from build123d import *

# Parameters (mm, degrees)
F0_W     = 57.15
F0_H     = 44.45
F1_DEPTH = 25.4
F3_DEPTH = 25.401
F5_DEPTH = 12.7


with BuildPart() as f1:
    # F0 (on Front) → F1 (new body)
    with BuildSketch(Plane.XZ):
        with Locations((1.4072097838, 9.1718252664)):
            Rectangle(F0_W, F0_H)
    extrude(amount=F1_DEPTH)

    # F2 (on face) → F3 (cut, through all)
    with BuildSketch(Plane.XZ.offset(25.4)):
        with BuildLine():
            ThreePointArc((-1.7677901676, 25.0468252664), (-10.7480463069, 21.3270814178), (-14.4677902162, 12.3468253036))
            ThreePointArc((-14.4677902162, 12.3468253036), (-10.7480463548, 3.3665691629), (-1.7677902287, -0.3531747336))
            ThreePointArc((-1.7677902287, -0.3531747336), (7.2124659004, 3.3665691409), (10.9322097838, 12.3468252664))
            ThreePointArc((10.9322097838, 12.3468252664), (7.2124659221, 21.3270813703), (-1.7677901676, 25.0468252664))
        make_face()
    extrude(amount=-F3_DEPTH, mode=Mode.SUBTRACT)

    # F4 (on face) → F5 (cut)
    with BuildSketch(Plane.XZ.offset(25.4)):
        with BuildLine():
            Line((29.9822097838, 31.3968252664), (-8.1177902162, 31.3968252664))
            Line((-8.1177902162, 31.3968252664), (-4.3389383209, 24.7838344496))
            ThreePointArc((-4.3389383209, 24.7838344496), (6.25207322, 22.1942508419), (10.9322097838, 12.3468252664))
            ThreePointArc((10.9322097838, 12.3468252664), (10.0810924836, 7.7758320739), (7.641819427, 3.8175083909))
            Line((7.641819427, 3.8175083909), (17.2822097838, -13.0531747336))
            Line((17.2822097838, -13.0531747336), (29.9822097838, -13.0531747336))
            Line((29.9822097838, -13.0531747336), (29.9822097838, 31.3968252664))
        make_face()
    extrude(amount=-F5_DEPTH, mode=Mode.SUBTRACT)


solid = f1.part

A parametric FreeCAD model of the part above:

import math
import FreeCAD as App
import Part
import Sketcher

V = App.Vector
Q = App.Units.Quantity


def add_polygon(sketch, points):
    """Adds a closed chain of lines whose ends are joined by coincident constraints."""
    first, n = sketch.GeometryCount, len(points)
    for a, b in zip(points, points[1:] + points[:1]):
        sketch.addGeometry(Part.LineSegment(App.Vector(*a, 0), App.Vector(*b, 0)), False)
    for i in range(n):
        sketch.addConstraint(Sketcher.Constraint("Coincident", first + i, 2, first + (i + 1) % n, 1))

doc = App.newDocument("Part")
body = doc.addObject("PartDesign::Body", "Body")

# Sketch on XZ plane
sketch1 = body.newObject("Sketcher::SketchObject", "Sketch")
sketch1.AttachmentSupport = (doc.getObject("XZ_Plane"), [""])
sketch1.MapMode = "FlatFace"
add_polygon(sketch1, [(-27.16779, 31.396825), (-27.16779, -13.053175), (29.98221, -13.053175), (29.98221, 31.396825)])  # lines 0-3
sketch1.addConstraint([
    Sketcher.Constraint("Vertical", 0),
    Sketcher.Constraint("Horizontal", 1),
    Sketcher.Constraint("Vertical", 2),
    Sketcher.Constraint("Horizontal", 3),
    Sketcher.Constraint("DistanceX", 1, 1, 1, 2, Q("2.25 in")),
    Sketcher.Constraint("DistanceY", 0, 2, 0, 1, Q("1.75 in")),
    Sketcher.Constraint("DistanceX", 0, 2, -1, 1, Q("27.16779 mm")),
    Sketcher.Constraint("DistanceY", 0, 2, -1, 1, Q("13.053175 mm")),
])
pad1 = body.newObject("PartDesign::Pad", "Pad")
pad1.Profile = sketch1
pad1.Length = Q("1 in")

# Sketch on XZ plane
sketch2 = body.newObject("Sketcher::SketchObject", "Sketch001")
sketch2.AttachmentSupport = (doc.getObject("XZ_Plane"), [""])
sketch2.MapMode = "FlatFace"
sketch2.AttachmentOffset = App.Placement(V(0, 0, 1 * 25.4), App.Rotation())
sketch2.addGeometry([
    Part.ArcOfCircle(Part.Circle(V(-1.76779, 12.346825, 0), V(0, 0, 1), 12.7), math.radians(90), math.radians(180)),
    Part.ArcOfCircle(Part.Circle(V(-1.76779, 12.346825, 0), V(0, 0, 1), 12.7), math.radians(180), math.radians(270)),
    Part.ArcOfCircle(Part.Circle(V(-1.76779, 12.346825, 0), V(0, 0, 1), 12.7), math.radians(-90), math.radians(0)),
    Part.ArcOfCircle(Part.Circle(V(-1.76779, 12.346825, 0), V(0, 0, 1), 12.7), math.radians(0), math.radians(90)),
], False)
sketch2.addConstraint([
    Sketcher.Constraint("Tangent", 0, 2, 1, 1),
    Sketcher.Constraint("Tangent", 1, 2, 2, 1),
    Sketcher.Constraint("Tangent", 2, 2, 3, 1),
    Sketcher.Constraint("Tangent", 3, 2, 0, 1),
    Sketcher.Constraint("Equal", 0, 1),
    Sketcher.Constraint("Horizontal", 3, 3, 0, 2),
    Sketcher.Constraint("Horizontal", 0, 2, 2, 2),
    Sketcher.Constraint("Vertical", 3, 3, 1, 2),
    Sketcher.Constraint("Vertical", 1, 2, 3, 2),
    Sketcher.Constraint("Radius", 0, Q("0.5 in")),
    Sketcher.Constraint("DistanceX", 0, 3, -1, 1, Q("1.76779 mm")),
    Sketcher.Constraint("DistanceY", -1, 1, 0, 3, Q("12.346825 mm")),
])
pocket1 = body.newObject("PartDesign::Pocket", "Pocket")
pocket1.Profile = sketch2
pocket1.Type = "ThroughAll"

# Sketch on XZ plane
sketch3 = body.newObject("Sketcher::SketchObject", "Sketch002")
sketch3.AttachmentSupport = (doc.getObject("XZ_Plane"), [""])
sketch3.MapMode = "FlatFace"
sketch3.AttachmentOffset = App.Placement(V(0, 0, 1 * 25.4), App.Rotation())
sketch3.addGeometry([
    Part.LineSegment(V(29.98221, 31.396825, 0), V(-8.11779, 31.396825, 0)),  # 0
    Part.LineSegment(V(-8.11779, 31.396825, 0), V(-4.338938, 24.783834, 0)),  # 1
    Part.ArcOfCircle(Part.Circle(V(-1.76779, 12.346825, 0), V(0, 0, 1), 12.7), math.radians(0), math.radians(101.680418)),  # 2
    Part.ArcOfCircle(Part.Circle(V(-1.76779, 12.346825, 0), V(0, 0, 1), 12.7), math.radians(-42.190655), math.radians(0)),  # 3
    Part.LineSegment(V(7.641819, 3.817508, 0), V(17.28221, -13.053175, 0)),  # 4
    Part.LineSegment(V(17.28221, -13.053175, 0), V(29.98221, -13.053175, 0)),  # 5
    Part.LineSegment(V(29.98221, -13.053175, 0), V(29.98221, 31.396825, 0)),  # 6
], False)
sketch3.addConstraint([
    Sketcher.Constraint("Coincident", 0, 2, 1, 1),
    Sketcher.Constraint("Coincident", 1, 2, 2, 2),
    Sketcher.Constraint("Tangent", 2, 1, 3, 2),
    Sketcher.Constraint("Coincident", 3, 1, 4, 1),
    Sketcher.Constraint("Coincident", 4, 2, 5, 1),
    Sketcher.Constraint("Coincident", 5, 2, 6, 1),
    Sketcher.Constraint("Coincident", 6, 2, 0, 1),
    Sketcher.Constraint("Horizontal", 0),
    Sketcher.Constraint("Horizontal", 5),
    Sketcher.Constraint("Vertical", 6),
    Sketcher.Constraint("Equal", 2, 3),
    Sketcher.Constraint("Parallel", 1, 4),
    Sketcher.Constraint("Horizontal", 3, 3, 2, 1),
    Sketcher.Constraint("Radius", 2, Q("0.5 in")),
    Sketcher.Constraint("DistanceX", 0, 2, 0, 1, Q("1.5 in")),
    Sketcher.Constraint("DistanceX", 5, 1, 5, 2, Q("0.5 in")),
    Sketcher.Constraint("DistanceY", 4, 2, 2, 1, Q("1 in")),
    Sketcher.Constraint("DistanceY", 6, 1, 6, 2, Q("1.75 in")),
    Sketcher.Constraint("DistanceX", 0, 2, 3, 3, Q("0.25 in")),
    Sketcher.Constraint("DistanceY", 3, 1, 2, 1, Q("0.3357999 in")),
    Sketcher.Constraint("DistanceX", 2, 3, -1, 1, Q("1.76779 mm")),
    Sketcher.Constraint("DistanceY", -1, 1, 3, 1, Q("3.817508 mm")),
])
pocket2 = body.newObject("PartDesign::Pocket", "Pocket001")
pocket2.Profile = sketch3
pocket2.Length = Q("0.5 in")

doc.recompute()
